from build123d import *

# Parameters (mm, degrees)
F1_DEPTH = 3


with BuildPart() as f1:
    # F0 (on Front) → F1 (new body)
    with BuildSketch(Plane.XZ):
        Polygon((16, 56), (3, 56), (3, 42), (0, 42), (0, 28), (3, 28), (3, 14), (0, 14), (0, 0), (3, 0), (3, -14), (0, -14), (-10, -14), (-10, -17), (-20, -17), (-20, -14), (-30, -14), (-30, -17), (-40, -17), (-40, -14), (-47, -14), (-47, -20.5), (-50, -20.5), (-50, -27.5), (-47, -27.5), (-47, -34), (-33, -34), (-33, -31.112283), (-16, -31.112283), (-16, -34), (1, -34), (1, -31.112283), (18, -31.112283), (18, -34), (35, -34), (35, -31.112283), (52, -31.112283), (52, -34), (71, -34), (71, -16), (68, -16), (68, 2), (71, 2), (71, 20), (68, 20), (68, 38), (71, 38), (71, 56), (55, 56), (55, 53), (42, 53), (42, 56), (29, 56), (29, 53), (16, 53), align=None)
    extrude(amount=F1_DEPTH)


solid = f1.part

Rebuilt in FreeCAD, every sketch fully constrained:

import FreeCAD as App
import Part
import Sketcher

doc = App.newDocument("Part")
body = doc.addObject("PartDesign::Body", "Body")

# Sketch on XZ plane
sketch1 = doc.addObject("Sketcher::SketchObject", "Sketch")
body.addObject(sketch1)
sketch1.AttachmentSupport = (doc.XZ_Plane, [""])
sketch1.MapMode = "FlatFace"
sketch1.addGeometry(Part.LineSegment(App.Vector(16, 56, 0), App.Vector(3, 56, 0)), False)
sketch1.addGeometry(Part.LineSegment(App.Vector(3, 56, 0), App.Vector(3, 42, 0)), False)
sketch1.addGeometry(Part.LineSegment(App.Vector(3, 42, 0), App.Vector(0, 42, 0)), False)
sketch1.addGeometry(Part.LineSegment(App.Vector(0, 42, 0), App.Vector(0, 28, 0)), False)
sketch1.addGeometry(Part.LineSegment(App.Vector(0, 28, 0), App.Vector(3, 28, 0)), False)
sketch1.addGeometry(Part.LineSegment(App.Vector(3, 28, 0), App.Vector(3, 14, 0)), False)
sketch1.addGeometry(Part.LineSegment(App.Vector(3, 14, 0), App.Vector(0, 14, 0)), False)
sketch1.addGeometry(Part.LineSegment(App.Vector(0, 14, 0), App.Vector(0, 0, 0)), False)
sketch1.addGeometry(Part.LineSegment(App.Vector(0, 0, 0), App.Vector(3, 0, 0)), False)
sketch1.addGeometry(Part.LineSegment(App.Vector(3, 0, 0), App.Vector(3, -14, 0)), False)
sketch1.addGeometry(Part.LineSegment(App.Vector(3, -14, 0), App.Vector(-10, -14, 0)), False)
sketch1.addGeometry(Part.LineSegment(App.Vector(-10, -14, 0), App.Vector(-10, -17, 0)), False)
sketch1.addGeometry(Part.LineSegment(App.Vector(-10, -17, 0), App.Vector(-20, -17, 0)), False)
sketch1.addGeometry(Part.LineSegment(App.Vector(-20, -17, 0), App.Vector(-20, -14, 0)), False)
sketch1.addGeometry(Part.LineSegment(App.Vector(-20, -14, 0), App.Vector(-30, -14, 0)), False)
sketch1.addGeometry(Part.LineSegment(App.Vector(-30, -14, 0), App.Vector(-30, -17, 0)), False)
sketch1.addGeometry(Part.LineSegment(App.Vector(-30, -17, 0), App.Vector(-40, -17, 0)), False)
sketch1.addGeometry(Part.LineSegment(App.Vector(-40, -17, 0), App.Vector(-40, -14, 0)), False)
sketch1.addGeometry(Part.LineSegment(App.Vector(-40, -14, 0), App.Vector(-47, -14, 0)), False)
sketch1.addGeometry(Part.LineSegment(App.Vector(-47, -14, 0), App.Vector(-47, -20.5, 0)), False)
sketch1.addGeometry(Part.LineSegment(App.Vector(-47, -20.5, 0), App.Vector(-50, -20.5, 0)), False)
sketch1.addGeometry(Part.LineSegment(App.Vector(-50, -20.5, 0), App.Vector(-50, -27.5, 0)), False)
sketch1.addGeometry(Part.LineSegment(App.Vector(-50, -27.5, 0), App.Vector(-47, -27.5, 0)), False)
sketch1.addGeometry(Part.LineSegment(App.Vector(-47, -27.5, 0), App.Vector(-47, -34, 0)), False)
sketch1.addGeometry(Part.LineSegment(App.Vector(-47, -34, 0), App.Vector(-33, -34, 0)), False)
sketch1.addGeometry(Part.LineSegment(App.Vector(-33, -34, 0), App.Vector(-33, -31.1, 0)), False)
sketch1.addGeometry(Part.LineSegment(App.Vector(-33, -31.1, 0), App.Vector(-16, -31.1, 0)), False)
sketch1.addGeometry(Part.LineSegment(App.Vector(-16, -31.1, 0), App.Vector(-16, -34, 0)), False)
sketch1.addGeometry(Part.LineSegment(App.Vector(-16, -34, 0), App.Vector(1, -34, 0)), False)
sketch1.addGeometry(Part.LineSegment(App.Vector(1, -34, 0), App.Vector(1, -31.1, 0)), False)
sketch1.addGeometry(Part.LineSegment(App.Vector(1, -31.1, 0), App.Vector(18, -31.1, 0)), False)
sketch1.addGeometry(Part.LineSegment(App.Vector(18, -31.1, 0), App.Vector(18, -34, 0)), False)
sketch1.addGeometry(Part.LineSegment(App.Vector(18, -34, 0), App.Vector(35, -34, 0)), False)
sketch1.addGeometry(Part.LineSegment(App.Vector(35, -34, 0), App.Vector(35, -31.1, 0)), False)
sketch1.addGeometry(Part.LineSegment(App.Vector(35, -31.1, 0), App.Vector(52, -31.1, 0)), False)
sketch1.addGeometry(Part.LineSegment(App.Vector(52, -31.1, 0), App.Vector(52, -34, 0)), False)
sketch1.addGeometry(Part.LineSegment(App.Vector(52, -34, 0), App.Vector(71, -34, 0)), False)
sketch1.addGeometry(Part.LineSegment(App.Vector(71, -34, 0), App.Vector(71, -16, 0)), False)
sketch1.addGeometry(Part.LineSegment(App.Vector(71, -16, 0), App.Vector(68, -16, 0)), False)
sketch1.addGeometry(Part.LineSegment(App.Vector(68, -16, 0), App.Vector(68, 2, 0)), False)
sketch1.addGeometry(Part.LineSegment(App.Vector(68, 2, 0), App.Vector(71, 2, 0)), False)
sketch1.addGeometry(Part.LineSegment(App.Vector(71, 2, 0), App.Vector(71, 20, 0)), False)
sketch1.addGeometry(Part.LineSegment(App.Vector(71, 20, 0), App.Vector(68, 20, 0)), False)
sketch1.addGeometry(Part.LineSegment(App.Vector(68, 20, 0), App.Vector(68, 38, 0)), False)
sketch1.addGeometry(Part.LineSegment(App.Vector(68, 38, 0), App.Vector(71, 38, 0)), False)
sketch1.addGeometry(Part.LineSegment(App.Vector(71, 38, 0), App.Vector(71, 56, 0)), False)
sketch1.addGeometry(Part.LineSegment(App.Vector(71, 56, 0), App.Vector(55, 56, 0)), False)
sketch1.addGeometry(Part.LineSegment(App.Vector(55, 56, 0), App.Vector(55, 53, 0)), False)
sketch1.addGeometry(Part.LineSegment(App.Vector(55, 53, 0), App.Vector(42, 53, 0)), False)
sketch1.addGeometry(Part.LineSegment(App.Vector(42, 53, 0), App.Vector(42, 56, 0)), False)
sketch1.addGeometry(Part.LineSegment(App.Vector(42, 56, 0), App.Vector(29, 56, 0)), False)
sketch1.addGeometry(Part.LineSegment(App.Vector(29, 56, 0), App.Vector(29, 53, 0)), False)
sketch1.addGeometry(Part.LineSegment(App.Vector(29, 53, 0), App.Vector(16, 53, 0)), False)
sketch1.addGeometry(Part.LineSegment(App.Vector(16, 53, 0), App.Vector(16, 56, 0)), False)
sketch1.addConstraint(Sketcher.Constraint("Coincident", 0, 2, 1, 1))
sketch1.addConstraint(Sketcher.Constraint("Coincident", 1, 2, 2, 1))
sketch1.addConstraint(Sketcher.Constraint("Coincident", 2, 2, 3, 1))
sketch1.addConstraint(Sketcher.Constraint("Coincident", 3, 2, 4, 1))
sketch1.addConstraint(Sketcher.Constraint("Coincident", 4, 2, 5, 1))
sketch1.addConstraint(Sketcher.Constraint("Coincident", 5, 2, 6, 1))
sketch1.addConstraint(Sketcher.Constraint("Coincident", 6, 2, 7, 1))
sketch1.addConstraint(Sketcher.Constraint("Coincident", 7, 2, 8, 1))
sketch1.addConstraint(Sketcher.Constraint("Coincident", 8, 2, 9, 1))
sketch1.addConstraint(Sketcher.Constraint("Coincident", 9, 2, 10, 1))
sketch1.addConstraint(Sketcher.Constraint("Coincident", 10, 2, 11, 1))
sketch1.addConstraint(Sketcher.Constraint("Coincident", 11, 2, 12, 1))
sketch1.addConstraint(Sketcher.Constraint("Coincident", 12, 2, 13, 1))
sketch1.addConstraint(Sketcher.Constraint("Coincident", 13, 2, 14, 1))
sketch1.addConstraint(Sketcher.Constraint("Coincident", 14, 2, 15, 1))
sketch1.addConstraint(Sketcher.Constraint("Coincident", 15, 2, 16, 1))
sketch1.addConstraint(Sketcher.Constraint("Coincident", 16, 2, 17, 1))
sketch1.addConstraint(Sketcher.Constraint("Coincident", 17, 2, 18, 1))
sketch1.addConstraint(Sketcher.Constraint("Coincident", 18, 2, 19, 1))
sketch1.addConstraint(Sketcher.Constraint("Coincident", 19, 2, 20, 1))
sketch1.addConstraint(Sketcher.Constraint("Coincident", 20, 2, 21, 1))
sketch1.addConstraint(Sketcher.Constraint("Coincident", 21, 2, 22, 1))
sketch1.addConstraint(Sketcher.Constraint("Coincident", 22, 2, 23, 1))
sketch1.addConstraint(Sketcher.Constraint("Coincident", 23, 2, 24, 1))
sketch1.addConstraint(Sketcher.Constraint("Coincident", 24, 2, 25, 1))
sketch1.addConstraint(Sketcher.Constraint("Coincident", 25, 2, 26, 1))
sketch1.addConstraint(Sketcher.Constraint("Coincident", 26, 2, 27, 1))
sketch1.addConstraint(Sketcher.Constraint("Coincident", 27, 2, 28, 1))
sketch1.addConstraint(Sketcher.Constraint("Coincident", 28, 2, 29, 1))
sketch1.addConstraint(Sketcher.Constraint("Coincident", 29, 2, 30, 1))
sketch1.addConstraint(Sketcher.Constraint("Coincident", 30, 2, 31, 1))
sketch1.addConstraint(Sketcher.Constraint("Coincident", 31, 2, 32, 1))
sketch1.addConstraint(Sketcher.Constraint("Coincident", 32, 2, 33, 1))
sketch1.addConstraint(Sketcher.Constraint("Coincident", 33, 2, 34, 1))
sketch1.addConstraint(Sketcher.Constraint("Coincident", 34, 2, 35, 1))
sketch1.addConstraint(Sketcher.Constraint("Coincident", 35, 2, 36, 1))
sketch1.addConstraint(Sketcher.Constraint("Coincident", 36, 2, 37, 1))
sketch1.addConstraint(Sketcher.Constraint("Coincident", 37, 2, 38, 1))
sketch1.addConstraint(Sketcher.Constraint("Coincident", 38, 2, 39, 1))
sketch1.addConstraint(Sketcher.Constraint("Coincident", 39, 2, 40, 1))
sketch1.addConstraint(Sketcher.Constraint("Coincident", 40, 2, 41, 1))
sketch1.addConstraint(Sketcher.Constraint("Coincident", 41, 2, 42, 1))
sketch1.addConstraint(Sketcher.Constraint("Coincident", 42, 2, 43, 1))
sketch1.addConstraint(Sketcher.Constraint("Coincident", 43, 2, 44, 1))
sketch1.addConstraint(Sketcher.Constraint("Coincident", 44, 2, 45, 1))
sketch1.addConstraint(Sketcher.Constraint("Coincident", 45, 2, 46, 1))
sketch1.addConstraint(Sketcher.Constraint("Coincident", 46, 2, 47, 1))
sketch1.addConstraint(Sketcher.Constraint("Coincident", 47, 2, 48, 1))
sketch1.addConstraint(Sketcher.Constraint("Coincident", 48, 2, 49, 1))
sketch1.addConstraint(Sketcher.Constraint("Coincident", 49, 2, 50, 1))
sketch1.addConstraint(Sketcher.Constraint("Coincident", 50, 2, 51, 1))
sketch1.addConstraint(Sketcher.Constraint("Coincident", 51, 2, 52, 1))
sketch1.addConstraint(Sketcher.Constraint("Coincident", 52, 2, 53, 1))
sketch1.addConstraint(Sketcher.Constraint("Coincident", 53, 2, 0, 1))
sketch1.addConstraint(Sketcher.Constraint("Horizontal", 0))
sketch1.addConstraint(Sketcher.Constraint("Vertical", 1))
sketch1.addConstraint(Sketcher.Constraint("Horizontal", 2))
sketch1.addConstraint(Sketcher.Constraint("Vertical", 3))
sketch1.addConstraint(Sketcher.Constraint("Horizontal", 4))
sketch1.addConstraint(Sketcher.Constraint("Vertical", 5))
sketch1.addConstraint(Sketcher.Constraint("Horizontal", 6))
sketch1.addConstraint(Sketcher.Constraint("Vertical", 7))
sketch1.addConstraint(Sketcher.Constraint("Horizontal", 8))
sketch1.addConstraint(Sketcher.Constraint("Vertical", 9))
sketch1.addConstraint(Sketcher.Constraint("Horizontal", 10))
sketch1.addConstraint(Sketcher.Constraint("Vertical", 11))
sketch1.addConstraint(Sketcher.Constraint("Horizontal", 12))
sketch1.addConstraint(Sketcher.Constraint("Vertical", 13))
sketch1.addConstraint(Sketcher.Constraint("Horizontal", 14))
sketch1.addConstraint(Sketcher.Constraint("Vertical", 15))
sketch1.addConstraint(Sketcher.Constraint("Horizontal", 16))
sketch1.addConstraint(Sketcher.Constraint("Vertical", 17))
sketch1.addConstraint(Sketcher.Constraint("Horizontal", 18))
sketch1.addConstraint(Sketcher.Constraint("Vertical", 19))
sketch1.addConstraint(Sketcher.Constraint("Horizontal", 20))
sketch1.addConstraint(Sketcher.Constraint("Vertical", 21))
sketch1.addConstraint(Sketcher.Constraint("Horizontal", 22))
sketch1.addConstraint(Sketcher.Constraint("Vertical", 23))
sketch1.addConstraint(Sketcher.Constraint("Horizontal", 24))
sketch1.addConstraint(Sketcher.Constraint("Vertical", 25))
sketch1.addConstraint(Sketcher.Constraint("Horizontal", 26))
sketch1.addConstraint(Sketcher.Constraint("Vertical", 27))
sketch1.addConstraint(Sketcher.Constraint("Horizontal", 28))
sketch1.addConstraint(Sketcher.Constraint("Vertical", 29))
sketch1.addConstraint(Sketcher.Constraint("Horizontal", 30))
sketch1.addConstraint(Sketcher.Constraint("Vertical", 31))
sketch1.addConstraint(Sketcher.Constraint("Horizontal", 32))
sketch1.addConstraint(Sketcher.Constraint("Vertical", 33))
sketch1.addConstraint(Sketcher.Constraint("Horizontal", 34))
sketch1.addConstraint(Sketcher.Constraint("Vertical", 35))
sketch1.addConstraint(Sketcher.Constraint("Horizontal", 36))
sketch1.addConstraint(Sketcher.Constraint("Vertical", 37))
sketch1.addConstraint(Sketcher.Constraint("Horizontal", 38))
sketch1.addConstraint(Sketcher.Constraint("Vertical", 39))
sketch1.addConstraint(Sketcher.Constraint("Horizontal", 40))
sketch1.addConstraint(Sketcher.Constraint("Vertical", 41))
sketch1.addConstraint(Sketcher.Constraint("Horizontal", 42))
sketch1.addConstraint(Sketcher.Constraint("Vertical", 43))
sketch1.addConstraint(Sketcher.Constraint("Horizontal", 44))
sketch1.addConstraint(Sketcher.Constraint("Vertical", 45))
sketch1.addConstraint(Sketcher.Constraint("Horizontal", 46))
sketch1.addConstraint(Sketcher.Constraint("Vertical", 47))
sketch1.addConstraint(Sketcher.Constraint("Horizontal", 48))
sketch1.addConstraint(Sketcher.Constraint("Vertical", 49))
sketch1.addConstraint(Sketcher.Constraint("Horizontal", 50))
sketch1.addConstraint(Sketcher.Constraint("Vertical", 51))
sketch1.addConstraint(Sketcher.Constraint("Horizontal", 52))
sketch1.addConstraint(Sketcher.Constraint("Vertical", 53))
sketch1.addConstraint(Sketcher.Constraint("Coincident", 7, 2, -1, 1))
sketch1.addConstraint(Sketcher.Constraint("Symmetric", 5, 2, 9, 2, -1))
sketch1.addConstraint(Sketcher.Constraint("PointOnObject", 2, 2, -2))
sketch1.addConstraint(Sketcher.Constraint("Horizontal", 10, 2, 13, 2))
sketch1.addConstraint(Sketcher.Constraint("Horizontal", 12, 2, 15, 2))
sketch1.addConstraint(Sketcher.Constraint("Horizontal", 14, 2, 17, 2))
sketch1.addConstraint(Sketcher.Constraint("Horizontal", 24, 2, 27, 2))
sketch1.addConstraint(Sketcher.Constraint("Horizontal", 26, 2, 29, 2))
sketch1.addConstraint(Sketcher.Constraint("Horizontal", 28, 2, 31, 2))
sketch1.addConstraint(Sketcher.Constraint("Horizontal", 30, 2, 33, 2))
sketch1.addConstraint(Sketcher.Constraint("Horizontal", 32, 2, 35, 2))
sketch1.addConstraint(Sketcher.Constraint("Horizontal", 0, 2, 45, 2))
sketch1.addConstraint(Sketcher.Constraint("Horizontal", 46, 2, 49, 2))
sketch1.addConstraint(Sketcher.Constraint("Horizontal", 48, 2, 51, 2))
sketch1.addConstraint(Sketcher.Constraint("Vertical", 1, 2, 4, 2))
sketch1.addConstraint(Sketcher.Constraint("Vertical", 19, 2, 22, 2))
sketch1.addConstraint(Sketcher.Constraint("Vertical", 37, 2, 40, 2))
sketch1.addConstraint(Sketcher.Constraint("Vertical", 39, 2, 42, 2))
sketch1.addConstraint(Sketcher.Constraint("Vertical", 41, 2, 44, 2))
sketch1.addConstraint(Sketcher.Constraint("Equal", 0, 10))
sketch1.addConstraint(Sketcher.Constraint("Equal", 12, 14))
sketch1.addConstraint(Sketcher.Constraint("Equal", 14, 16))
sketch1.addConstraint(Sketcher.Constraint("Equal", 8, 20))
sketch1.addConstraint(Sketcher.Constraint("Equal", 26, 28))
sketch1.addConstraint(Sketcher.Constraint("Equal", 28, 30))
sketch1.addConstraint(Sketcher.Constraint("Equal", 30, 32))
sketch1.addConstraint(Sketcher.Constraint("Equal", 32, 34))
sketch1.addConstraint(Sketcher.Constraint("Equal", 22, 38))
sketch1.addConstraint(Sketcher.Constraint("Equal", 10, 48))
sketch1.addConstraint(Sketcher.Constraint("Equal", 48, 50))
sketch1.addConstraint(Sketcher.Constraint("Equal", 50, 52))
sketch1.addConstraint(Sketcher.Constraint("Equal", 24, 1))
sketch1.addConstraint(Sketcher.Constraint("Equal", 1, 3))
sketch1.addConstraint(Sketcher.Constraint("Equal", 3, 5))
sketch1.addConstraint(Sketcher.Constraint("Equal", 5, 7))
sketch1.addConstraint(Sketcher.Constraint("Equal", 44, 11))
sketch1.addConstraint(Sketcher.Constraint("Equal", 18, 21))
sketch1.addConstraint(Sketcher.Constraint("Equal", 19, 23))
sketch1.addConstraint(Sketcher.Constraint("Equal", 37, 39))
sketch1.addConstraint(Sketcher.Constraint("Equal", 39, 41))
sketch1.addConstraint(Sketcher.Constraint("Equal", 41, 43))
sketch1.addConstraint(Sketcher.Constraint("Equal", 43, 45))
sketch1.addConstraint(Sketcher.Constraint("Equal", 17, 47))
sketch1.addConstraint(Sketcher.Constraint("DistanceX", 0, 2, 0, 1, 13.0))
sketch1.addConstraint(Sketcher.Constraint("DistanceX", 2, 2, 2, 1, 3.0))
sketch1.addConstraint(Sketcher.Constraint("DistanceX", 12, 2, 12, 1, 10.0))
sketch1.addConstraint(Sketcher.Constraint("DistanceX", 18, 2, 18, 1, 7.0))
sketch1.addConstraint(Sketcher.Constraint("DistanceX", 24, 1, 24, 2, 14.0))
sketch1.addConstraint(Sketcher.Constraint("DistanceX", 26, 1, 26, 2, 17.0))
sketch1.addConstraint(Sketcher.Constraint("DistanceX", 36, 1, 36, 2, 19.0))
sketch1.addConstraint(Sketcher.Constraint("DistanceY", 37, 1, 37, 2, 18.0))
sketch1.addConstraint(Sketcher.Constraint("DistanceY", 25, 1, 25, 2, 2.887717))
pad1 = doc.addObject("PartDesign::Pad", "Pad")
body.addObject(pad1)
pad1.Profile = sketch1
pad1.Length = 3

doc.recompute()
